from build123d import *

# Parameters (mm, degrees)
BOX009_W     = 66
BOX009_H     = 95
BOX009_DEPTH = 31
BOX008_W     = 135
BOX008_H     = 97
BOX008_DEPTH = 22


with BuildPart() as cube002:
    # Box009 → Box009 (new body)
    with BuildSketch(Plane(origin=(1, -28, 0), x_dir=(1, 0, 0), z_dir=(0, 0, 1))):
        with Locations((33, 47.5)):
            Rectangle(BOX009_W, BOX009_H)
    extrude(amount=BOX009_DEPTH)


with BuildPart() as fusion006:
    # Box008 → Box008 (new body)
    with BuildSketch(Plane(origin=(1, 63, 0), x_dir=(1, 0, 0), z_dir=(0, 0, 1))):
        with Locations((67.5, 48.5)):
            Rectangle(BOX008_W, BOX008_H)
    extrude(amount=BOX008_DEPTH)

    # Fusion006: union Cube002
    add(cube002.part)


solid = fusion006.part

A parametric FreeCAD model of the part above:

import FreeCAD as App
import Part
import Sketcher

V = App.Vector


def add_polygon(sketch, points):
    """Adds a closed chain of lines whose ends are joined by coincident constraints."""
    first, n = sketch.GeometryCount, len(points)
    for a, b in zip(points, points[1:] + points[:1]):
        sketch.addGeometry(Part.LineSegment(App.Vector(*a, 0), App.Vector(*b, 0)), False)
    for i in range(n):
        sketch.addConstraint(Sketcher.Constraint("Coincident", first + i, 2, first + (i + 1) % n, 1))

doc = App.newDocument("Part")
body = doc.addObject("PartDesign::Body", "Body")

sketch1 = doc.addObject("Sketcher::SketchObject", "Sketch")
body.addObject(sketch1)
sketch1.AttachmentSupport = (doc.XY_Plane, [""])
sketch1.MapMode = "FlatFace"
add_polygon(sketch1, [(1, 67), (1, -28), (67, -28), (67, 67)])
sketch1.addConstraint(Sketcher.Constraint("Vertical", 0))
sketch1.addConstraint(Sketcher.Constraint("Horizontal", 1))
sketch1.addConstraint(Sketcher.Constraint("Vertical", 2))
sketch1.addConstraint(Sketcher.Constraint("Horizontal", 3))
sketch1.addConstraint(Sketcher.Constraint("DistanceX", 1, 1, 1, 2, 66.0))
sketch1.addConstraint(Sketcher.Constraint("DistanceY", 0, 2, 0, 1, 95.0))
sketch1.addConstraint(Sketcher.Constraint("DistanceX", -1, 1, 0, 2, 1.0))
sketch1.addConstraint(Sketcher.Constraint("DistanceY", 0, 2, -1, 1, 28.0))
pad1 = doc.addObject("PartDesign::Pad", "Pad")
body.addObject(pad1)
pad1.Profile = sketch1
pad1.Length = 31
body2 = doc.addObject("PartDesign::Body", "Body001")

sketch2 = doc.addObject("Sketcher::SketchObject", "Sketch001")
body2.addObject(sketch2)
sketch2.AttachmentSupport = (doc.getObject("XY_Plane001"), [""])
sketch2.MapMode = "FlatFace"
add_polygon(sketch2, [(1, 160), (1, 63), (136, 63), (136, 160)])
sketch2.addConstraint(Sketcher.Constraint("Vertical", 0))
sketch2.addConstraint(Sketcher.Constraint("Horizontal", 1))
sketch2.addConstraint(Sketcher.Constraint("Vertical", 2))
sketch2.addConstraint(Sketcher.Constraint("Horizontal", 3))
sketch2.addConstraint(Sketcher.Constraint("DistanceX", 1, 1, 1, 2, 135.0))
sketch2.addConstraint(Sketcher.Constraint("DistanceY", 0, 2, 0, 1, 97.0))
sketch2.addConstraint(Sketcher.Constraint("DistanceX", -1, 1, 0, 2, 1.0))
sketch2.addConstraint(Sketcher.Constraint("DistanceY", -1, 1, 0, 2, 63.0))
pad2 = doc.addObject("PartDesign::Pad", "Pad001")
body2.addObject(pad2)
pad2.Profile = sketch2
pad2.Length = 22
doc.recompute()

boolean = doc.addObject("PartDesign::Boolean", "Boolean")
body2.addObject(boolean)
boolean.Type = "Fuse"
boolean.addObjects([body])

doc.recompute()
